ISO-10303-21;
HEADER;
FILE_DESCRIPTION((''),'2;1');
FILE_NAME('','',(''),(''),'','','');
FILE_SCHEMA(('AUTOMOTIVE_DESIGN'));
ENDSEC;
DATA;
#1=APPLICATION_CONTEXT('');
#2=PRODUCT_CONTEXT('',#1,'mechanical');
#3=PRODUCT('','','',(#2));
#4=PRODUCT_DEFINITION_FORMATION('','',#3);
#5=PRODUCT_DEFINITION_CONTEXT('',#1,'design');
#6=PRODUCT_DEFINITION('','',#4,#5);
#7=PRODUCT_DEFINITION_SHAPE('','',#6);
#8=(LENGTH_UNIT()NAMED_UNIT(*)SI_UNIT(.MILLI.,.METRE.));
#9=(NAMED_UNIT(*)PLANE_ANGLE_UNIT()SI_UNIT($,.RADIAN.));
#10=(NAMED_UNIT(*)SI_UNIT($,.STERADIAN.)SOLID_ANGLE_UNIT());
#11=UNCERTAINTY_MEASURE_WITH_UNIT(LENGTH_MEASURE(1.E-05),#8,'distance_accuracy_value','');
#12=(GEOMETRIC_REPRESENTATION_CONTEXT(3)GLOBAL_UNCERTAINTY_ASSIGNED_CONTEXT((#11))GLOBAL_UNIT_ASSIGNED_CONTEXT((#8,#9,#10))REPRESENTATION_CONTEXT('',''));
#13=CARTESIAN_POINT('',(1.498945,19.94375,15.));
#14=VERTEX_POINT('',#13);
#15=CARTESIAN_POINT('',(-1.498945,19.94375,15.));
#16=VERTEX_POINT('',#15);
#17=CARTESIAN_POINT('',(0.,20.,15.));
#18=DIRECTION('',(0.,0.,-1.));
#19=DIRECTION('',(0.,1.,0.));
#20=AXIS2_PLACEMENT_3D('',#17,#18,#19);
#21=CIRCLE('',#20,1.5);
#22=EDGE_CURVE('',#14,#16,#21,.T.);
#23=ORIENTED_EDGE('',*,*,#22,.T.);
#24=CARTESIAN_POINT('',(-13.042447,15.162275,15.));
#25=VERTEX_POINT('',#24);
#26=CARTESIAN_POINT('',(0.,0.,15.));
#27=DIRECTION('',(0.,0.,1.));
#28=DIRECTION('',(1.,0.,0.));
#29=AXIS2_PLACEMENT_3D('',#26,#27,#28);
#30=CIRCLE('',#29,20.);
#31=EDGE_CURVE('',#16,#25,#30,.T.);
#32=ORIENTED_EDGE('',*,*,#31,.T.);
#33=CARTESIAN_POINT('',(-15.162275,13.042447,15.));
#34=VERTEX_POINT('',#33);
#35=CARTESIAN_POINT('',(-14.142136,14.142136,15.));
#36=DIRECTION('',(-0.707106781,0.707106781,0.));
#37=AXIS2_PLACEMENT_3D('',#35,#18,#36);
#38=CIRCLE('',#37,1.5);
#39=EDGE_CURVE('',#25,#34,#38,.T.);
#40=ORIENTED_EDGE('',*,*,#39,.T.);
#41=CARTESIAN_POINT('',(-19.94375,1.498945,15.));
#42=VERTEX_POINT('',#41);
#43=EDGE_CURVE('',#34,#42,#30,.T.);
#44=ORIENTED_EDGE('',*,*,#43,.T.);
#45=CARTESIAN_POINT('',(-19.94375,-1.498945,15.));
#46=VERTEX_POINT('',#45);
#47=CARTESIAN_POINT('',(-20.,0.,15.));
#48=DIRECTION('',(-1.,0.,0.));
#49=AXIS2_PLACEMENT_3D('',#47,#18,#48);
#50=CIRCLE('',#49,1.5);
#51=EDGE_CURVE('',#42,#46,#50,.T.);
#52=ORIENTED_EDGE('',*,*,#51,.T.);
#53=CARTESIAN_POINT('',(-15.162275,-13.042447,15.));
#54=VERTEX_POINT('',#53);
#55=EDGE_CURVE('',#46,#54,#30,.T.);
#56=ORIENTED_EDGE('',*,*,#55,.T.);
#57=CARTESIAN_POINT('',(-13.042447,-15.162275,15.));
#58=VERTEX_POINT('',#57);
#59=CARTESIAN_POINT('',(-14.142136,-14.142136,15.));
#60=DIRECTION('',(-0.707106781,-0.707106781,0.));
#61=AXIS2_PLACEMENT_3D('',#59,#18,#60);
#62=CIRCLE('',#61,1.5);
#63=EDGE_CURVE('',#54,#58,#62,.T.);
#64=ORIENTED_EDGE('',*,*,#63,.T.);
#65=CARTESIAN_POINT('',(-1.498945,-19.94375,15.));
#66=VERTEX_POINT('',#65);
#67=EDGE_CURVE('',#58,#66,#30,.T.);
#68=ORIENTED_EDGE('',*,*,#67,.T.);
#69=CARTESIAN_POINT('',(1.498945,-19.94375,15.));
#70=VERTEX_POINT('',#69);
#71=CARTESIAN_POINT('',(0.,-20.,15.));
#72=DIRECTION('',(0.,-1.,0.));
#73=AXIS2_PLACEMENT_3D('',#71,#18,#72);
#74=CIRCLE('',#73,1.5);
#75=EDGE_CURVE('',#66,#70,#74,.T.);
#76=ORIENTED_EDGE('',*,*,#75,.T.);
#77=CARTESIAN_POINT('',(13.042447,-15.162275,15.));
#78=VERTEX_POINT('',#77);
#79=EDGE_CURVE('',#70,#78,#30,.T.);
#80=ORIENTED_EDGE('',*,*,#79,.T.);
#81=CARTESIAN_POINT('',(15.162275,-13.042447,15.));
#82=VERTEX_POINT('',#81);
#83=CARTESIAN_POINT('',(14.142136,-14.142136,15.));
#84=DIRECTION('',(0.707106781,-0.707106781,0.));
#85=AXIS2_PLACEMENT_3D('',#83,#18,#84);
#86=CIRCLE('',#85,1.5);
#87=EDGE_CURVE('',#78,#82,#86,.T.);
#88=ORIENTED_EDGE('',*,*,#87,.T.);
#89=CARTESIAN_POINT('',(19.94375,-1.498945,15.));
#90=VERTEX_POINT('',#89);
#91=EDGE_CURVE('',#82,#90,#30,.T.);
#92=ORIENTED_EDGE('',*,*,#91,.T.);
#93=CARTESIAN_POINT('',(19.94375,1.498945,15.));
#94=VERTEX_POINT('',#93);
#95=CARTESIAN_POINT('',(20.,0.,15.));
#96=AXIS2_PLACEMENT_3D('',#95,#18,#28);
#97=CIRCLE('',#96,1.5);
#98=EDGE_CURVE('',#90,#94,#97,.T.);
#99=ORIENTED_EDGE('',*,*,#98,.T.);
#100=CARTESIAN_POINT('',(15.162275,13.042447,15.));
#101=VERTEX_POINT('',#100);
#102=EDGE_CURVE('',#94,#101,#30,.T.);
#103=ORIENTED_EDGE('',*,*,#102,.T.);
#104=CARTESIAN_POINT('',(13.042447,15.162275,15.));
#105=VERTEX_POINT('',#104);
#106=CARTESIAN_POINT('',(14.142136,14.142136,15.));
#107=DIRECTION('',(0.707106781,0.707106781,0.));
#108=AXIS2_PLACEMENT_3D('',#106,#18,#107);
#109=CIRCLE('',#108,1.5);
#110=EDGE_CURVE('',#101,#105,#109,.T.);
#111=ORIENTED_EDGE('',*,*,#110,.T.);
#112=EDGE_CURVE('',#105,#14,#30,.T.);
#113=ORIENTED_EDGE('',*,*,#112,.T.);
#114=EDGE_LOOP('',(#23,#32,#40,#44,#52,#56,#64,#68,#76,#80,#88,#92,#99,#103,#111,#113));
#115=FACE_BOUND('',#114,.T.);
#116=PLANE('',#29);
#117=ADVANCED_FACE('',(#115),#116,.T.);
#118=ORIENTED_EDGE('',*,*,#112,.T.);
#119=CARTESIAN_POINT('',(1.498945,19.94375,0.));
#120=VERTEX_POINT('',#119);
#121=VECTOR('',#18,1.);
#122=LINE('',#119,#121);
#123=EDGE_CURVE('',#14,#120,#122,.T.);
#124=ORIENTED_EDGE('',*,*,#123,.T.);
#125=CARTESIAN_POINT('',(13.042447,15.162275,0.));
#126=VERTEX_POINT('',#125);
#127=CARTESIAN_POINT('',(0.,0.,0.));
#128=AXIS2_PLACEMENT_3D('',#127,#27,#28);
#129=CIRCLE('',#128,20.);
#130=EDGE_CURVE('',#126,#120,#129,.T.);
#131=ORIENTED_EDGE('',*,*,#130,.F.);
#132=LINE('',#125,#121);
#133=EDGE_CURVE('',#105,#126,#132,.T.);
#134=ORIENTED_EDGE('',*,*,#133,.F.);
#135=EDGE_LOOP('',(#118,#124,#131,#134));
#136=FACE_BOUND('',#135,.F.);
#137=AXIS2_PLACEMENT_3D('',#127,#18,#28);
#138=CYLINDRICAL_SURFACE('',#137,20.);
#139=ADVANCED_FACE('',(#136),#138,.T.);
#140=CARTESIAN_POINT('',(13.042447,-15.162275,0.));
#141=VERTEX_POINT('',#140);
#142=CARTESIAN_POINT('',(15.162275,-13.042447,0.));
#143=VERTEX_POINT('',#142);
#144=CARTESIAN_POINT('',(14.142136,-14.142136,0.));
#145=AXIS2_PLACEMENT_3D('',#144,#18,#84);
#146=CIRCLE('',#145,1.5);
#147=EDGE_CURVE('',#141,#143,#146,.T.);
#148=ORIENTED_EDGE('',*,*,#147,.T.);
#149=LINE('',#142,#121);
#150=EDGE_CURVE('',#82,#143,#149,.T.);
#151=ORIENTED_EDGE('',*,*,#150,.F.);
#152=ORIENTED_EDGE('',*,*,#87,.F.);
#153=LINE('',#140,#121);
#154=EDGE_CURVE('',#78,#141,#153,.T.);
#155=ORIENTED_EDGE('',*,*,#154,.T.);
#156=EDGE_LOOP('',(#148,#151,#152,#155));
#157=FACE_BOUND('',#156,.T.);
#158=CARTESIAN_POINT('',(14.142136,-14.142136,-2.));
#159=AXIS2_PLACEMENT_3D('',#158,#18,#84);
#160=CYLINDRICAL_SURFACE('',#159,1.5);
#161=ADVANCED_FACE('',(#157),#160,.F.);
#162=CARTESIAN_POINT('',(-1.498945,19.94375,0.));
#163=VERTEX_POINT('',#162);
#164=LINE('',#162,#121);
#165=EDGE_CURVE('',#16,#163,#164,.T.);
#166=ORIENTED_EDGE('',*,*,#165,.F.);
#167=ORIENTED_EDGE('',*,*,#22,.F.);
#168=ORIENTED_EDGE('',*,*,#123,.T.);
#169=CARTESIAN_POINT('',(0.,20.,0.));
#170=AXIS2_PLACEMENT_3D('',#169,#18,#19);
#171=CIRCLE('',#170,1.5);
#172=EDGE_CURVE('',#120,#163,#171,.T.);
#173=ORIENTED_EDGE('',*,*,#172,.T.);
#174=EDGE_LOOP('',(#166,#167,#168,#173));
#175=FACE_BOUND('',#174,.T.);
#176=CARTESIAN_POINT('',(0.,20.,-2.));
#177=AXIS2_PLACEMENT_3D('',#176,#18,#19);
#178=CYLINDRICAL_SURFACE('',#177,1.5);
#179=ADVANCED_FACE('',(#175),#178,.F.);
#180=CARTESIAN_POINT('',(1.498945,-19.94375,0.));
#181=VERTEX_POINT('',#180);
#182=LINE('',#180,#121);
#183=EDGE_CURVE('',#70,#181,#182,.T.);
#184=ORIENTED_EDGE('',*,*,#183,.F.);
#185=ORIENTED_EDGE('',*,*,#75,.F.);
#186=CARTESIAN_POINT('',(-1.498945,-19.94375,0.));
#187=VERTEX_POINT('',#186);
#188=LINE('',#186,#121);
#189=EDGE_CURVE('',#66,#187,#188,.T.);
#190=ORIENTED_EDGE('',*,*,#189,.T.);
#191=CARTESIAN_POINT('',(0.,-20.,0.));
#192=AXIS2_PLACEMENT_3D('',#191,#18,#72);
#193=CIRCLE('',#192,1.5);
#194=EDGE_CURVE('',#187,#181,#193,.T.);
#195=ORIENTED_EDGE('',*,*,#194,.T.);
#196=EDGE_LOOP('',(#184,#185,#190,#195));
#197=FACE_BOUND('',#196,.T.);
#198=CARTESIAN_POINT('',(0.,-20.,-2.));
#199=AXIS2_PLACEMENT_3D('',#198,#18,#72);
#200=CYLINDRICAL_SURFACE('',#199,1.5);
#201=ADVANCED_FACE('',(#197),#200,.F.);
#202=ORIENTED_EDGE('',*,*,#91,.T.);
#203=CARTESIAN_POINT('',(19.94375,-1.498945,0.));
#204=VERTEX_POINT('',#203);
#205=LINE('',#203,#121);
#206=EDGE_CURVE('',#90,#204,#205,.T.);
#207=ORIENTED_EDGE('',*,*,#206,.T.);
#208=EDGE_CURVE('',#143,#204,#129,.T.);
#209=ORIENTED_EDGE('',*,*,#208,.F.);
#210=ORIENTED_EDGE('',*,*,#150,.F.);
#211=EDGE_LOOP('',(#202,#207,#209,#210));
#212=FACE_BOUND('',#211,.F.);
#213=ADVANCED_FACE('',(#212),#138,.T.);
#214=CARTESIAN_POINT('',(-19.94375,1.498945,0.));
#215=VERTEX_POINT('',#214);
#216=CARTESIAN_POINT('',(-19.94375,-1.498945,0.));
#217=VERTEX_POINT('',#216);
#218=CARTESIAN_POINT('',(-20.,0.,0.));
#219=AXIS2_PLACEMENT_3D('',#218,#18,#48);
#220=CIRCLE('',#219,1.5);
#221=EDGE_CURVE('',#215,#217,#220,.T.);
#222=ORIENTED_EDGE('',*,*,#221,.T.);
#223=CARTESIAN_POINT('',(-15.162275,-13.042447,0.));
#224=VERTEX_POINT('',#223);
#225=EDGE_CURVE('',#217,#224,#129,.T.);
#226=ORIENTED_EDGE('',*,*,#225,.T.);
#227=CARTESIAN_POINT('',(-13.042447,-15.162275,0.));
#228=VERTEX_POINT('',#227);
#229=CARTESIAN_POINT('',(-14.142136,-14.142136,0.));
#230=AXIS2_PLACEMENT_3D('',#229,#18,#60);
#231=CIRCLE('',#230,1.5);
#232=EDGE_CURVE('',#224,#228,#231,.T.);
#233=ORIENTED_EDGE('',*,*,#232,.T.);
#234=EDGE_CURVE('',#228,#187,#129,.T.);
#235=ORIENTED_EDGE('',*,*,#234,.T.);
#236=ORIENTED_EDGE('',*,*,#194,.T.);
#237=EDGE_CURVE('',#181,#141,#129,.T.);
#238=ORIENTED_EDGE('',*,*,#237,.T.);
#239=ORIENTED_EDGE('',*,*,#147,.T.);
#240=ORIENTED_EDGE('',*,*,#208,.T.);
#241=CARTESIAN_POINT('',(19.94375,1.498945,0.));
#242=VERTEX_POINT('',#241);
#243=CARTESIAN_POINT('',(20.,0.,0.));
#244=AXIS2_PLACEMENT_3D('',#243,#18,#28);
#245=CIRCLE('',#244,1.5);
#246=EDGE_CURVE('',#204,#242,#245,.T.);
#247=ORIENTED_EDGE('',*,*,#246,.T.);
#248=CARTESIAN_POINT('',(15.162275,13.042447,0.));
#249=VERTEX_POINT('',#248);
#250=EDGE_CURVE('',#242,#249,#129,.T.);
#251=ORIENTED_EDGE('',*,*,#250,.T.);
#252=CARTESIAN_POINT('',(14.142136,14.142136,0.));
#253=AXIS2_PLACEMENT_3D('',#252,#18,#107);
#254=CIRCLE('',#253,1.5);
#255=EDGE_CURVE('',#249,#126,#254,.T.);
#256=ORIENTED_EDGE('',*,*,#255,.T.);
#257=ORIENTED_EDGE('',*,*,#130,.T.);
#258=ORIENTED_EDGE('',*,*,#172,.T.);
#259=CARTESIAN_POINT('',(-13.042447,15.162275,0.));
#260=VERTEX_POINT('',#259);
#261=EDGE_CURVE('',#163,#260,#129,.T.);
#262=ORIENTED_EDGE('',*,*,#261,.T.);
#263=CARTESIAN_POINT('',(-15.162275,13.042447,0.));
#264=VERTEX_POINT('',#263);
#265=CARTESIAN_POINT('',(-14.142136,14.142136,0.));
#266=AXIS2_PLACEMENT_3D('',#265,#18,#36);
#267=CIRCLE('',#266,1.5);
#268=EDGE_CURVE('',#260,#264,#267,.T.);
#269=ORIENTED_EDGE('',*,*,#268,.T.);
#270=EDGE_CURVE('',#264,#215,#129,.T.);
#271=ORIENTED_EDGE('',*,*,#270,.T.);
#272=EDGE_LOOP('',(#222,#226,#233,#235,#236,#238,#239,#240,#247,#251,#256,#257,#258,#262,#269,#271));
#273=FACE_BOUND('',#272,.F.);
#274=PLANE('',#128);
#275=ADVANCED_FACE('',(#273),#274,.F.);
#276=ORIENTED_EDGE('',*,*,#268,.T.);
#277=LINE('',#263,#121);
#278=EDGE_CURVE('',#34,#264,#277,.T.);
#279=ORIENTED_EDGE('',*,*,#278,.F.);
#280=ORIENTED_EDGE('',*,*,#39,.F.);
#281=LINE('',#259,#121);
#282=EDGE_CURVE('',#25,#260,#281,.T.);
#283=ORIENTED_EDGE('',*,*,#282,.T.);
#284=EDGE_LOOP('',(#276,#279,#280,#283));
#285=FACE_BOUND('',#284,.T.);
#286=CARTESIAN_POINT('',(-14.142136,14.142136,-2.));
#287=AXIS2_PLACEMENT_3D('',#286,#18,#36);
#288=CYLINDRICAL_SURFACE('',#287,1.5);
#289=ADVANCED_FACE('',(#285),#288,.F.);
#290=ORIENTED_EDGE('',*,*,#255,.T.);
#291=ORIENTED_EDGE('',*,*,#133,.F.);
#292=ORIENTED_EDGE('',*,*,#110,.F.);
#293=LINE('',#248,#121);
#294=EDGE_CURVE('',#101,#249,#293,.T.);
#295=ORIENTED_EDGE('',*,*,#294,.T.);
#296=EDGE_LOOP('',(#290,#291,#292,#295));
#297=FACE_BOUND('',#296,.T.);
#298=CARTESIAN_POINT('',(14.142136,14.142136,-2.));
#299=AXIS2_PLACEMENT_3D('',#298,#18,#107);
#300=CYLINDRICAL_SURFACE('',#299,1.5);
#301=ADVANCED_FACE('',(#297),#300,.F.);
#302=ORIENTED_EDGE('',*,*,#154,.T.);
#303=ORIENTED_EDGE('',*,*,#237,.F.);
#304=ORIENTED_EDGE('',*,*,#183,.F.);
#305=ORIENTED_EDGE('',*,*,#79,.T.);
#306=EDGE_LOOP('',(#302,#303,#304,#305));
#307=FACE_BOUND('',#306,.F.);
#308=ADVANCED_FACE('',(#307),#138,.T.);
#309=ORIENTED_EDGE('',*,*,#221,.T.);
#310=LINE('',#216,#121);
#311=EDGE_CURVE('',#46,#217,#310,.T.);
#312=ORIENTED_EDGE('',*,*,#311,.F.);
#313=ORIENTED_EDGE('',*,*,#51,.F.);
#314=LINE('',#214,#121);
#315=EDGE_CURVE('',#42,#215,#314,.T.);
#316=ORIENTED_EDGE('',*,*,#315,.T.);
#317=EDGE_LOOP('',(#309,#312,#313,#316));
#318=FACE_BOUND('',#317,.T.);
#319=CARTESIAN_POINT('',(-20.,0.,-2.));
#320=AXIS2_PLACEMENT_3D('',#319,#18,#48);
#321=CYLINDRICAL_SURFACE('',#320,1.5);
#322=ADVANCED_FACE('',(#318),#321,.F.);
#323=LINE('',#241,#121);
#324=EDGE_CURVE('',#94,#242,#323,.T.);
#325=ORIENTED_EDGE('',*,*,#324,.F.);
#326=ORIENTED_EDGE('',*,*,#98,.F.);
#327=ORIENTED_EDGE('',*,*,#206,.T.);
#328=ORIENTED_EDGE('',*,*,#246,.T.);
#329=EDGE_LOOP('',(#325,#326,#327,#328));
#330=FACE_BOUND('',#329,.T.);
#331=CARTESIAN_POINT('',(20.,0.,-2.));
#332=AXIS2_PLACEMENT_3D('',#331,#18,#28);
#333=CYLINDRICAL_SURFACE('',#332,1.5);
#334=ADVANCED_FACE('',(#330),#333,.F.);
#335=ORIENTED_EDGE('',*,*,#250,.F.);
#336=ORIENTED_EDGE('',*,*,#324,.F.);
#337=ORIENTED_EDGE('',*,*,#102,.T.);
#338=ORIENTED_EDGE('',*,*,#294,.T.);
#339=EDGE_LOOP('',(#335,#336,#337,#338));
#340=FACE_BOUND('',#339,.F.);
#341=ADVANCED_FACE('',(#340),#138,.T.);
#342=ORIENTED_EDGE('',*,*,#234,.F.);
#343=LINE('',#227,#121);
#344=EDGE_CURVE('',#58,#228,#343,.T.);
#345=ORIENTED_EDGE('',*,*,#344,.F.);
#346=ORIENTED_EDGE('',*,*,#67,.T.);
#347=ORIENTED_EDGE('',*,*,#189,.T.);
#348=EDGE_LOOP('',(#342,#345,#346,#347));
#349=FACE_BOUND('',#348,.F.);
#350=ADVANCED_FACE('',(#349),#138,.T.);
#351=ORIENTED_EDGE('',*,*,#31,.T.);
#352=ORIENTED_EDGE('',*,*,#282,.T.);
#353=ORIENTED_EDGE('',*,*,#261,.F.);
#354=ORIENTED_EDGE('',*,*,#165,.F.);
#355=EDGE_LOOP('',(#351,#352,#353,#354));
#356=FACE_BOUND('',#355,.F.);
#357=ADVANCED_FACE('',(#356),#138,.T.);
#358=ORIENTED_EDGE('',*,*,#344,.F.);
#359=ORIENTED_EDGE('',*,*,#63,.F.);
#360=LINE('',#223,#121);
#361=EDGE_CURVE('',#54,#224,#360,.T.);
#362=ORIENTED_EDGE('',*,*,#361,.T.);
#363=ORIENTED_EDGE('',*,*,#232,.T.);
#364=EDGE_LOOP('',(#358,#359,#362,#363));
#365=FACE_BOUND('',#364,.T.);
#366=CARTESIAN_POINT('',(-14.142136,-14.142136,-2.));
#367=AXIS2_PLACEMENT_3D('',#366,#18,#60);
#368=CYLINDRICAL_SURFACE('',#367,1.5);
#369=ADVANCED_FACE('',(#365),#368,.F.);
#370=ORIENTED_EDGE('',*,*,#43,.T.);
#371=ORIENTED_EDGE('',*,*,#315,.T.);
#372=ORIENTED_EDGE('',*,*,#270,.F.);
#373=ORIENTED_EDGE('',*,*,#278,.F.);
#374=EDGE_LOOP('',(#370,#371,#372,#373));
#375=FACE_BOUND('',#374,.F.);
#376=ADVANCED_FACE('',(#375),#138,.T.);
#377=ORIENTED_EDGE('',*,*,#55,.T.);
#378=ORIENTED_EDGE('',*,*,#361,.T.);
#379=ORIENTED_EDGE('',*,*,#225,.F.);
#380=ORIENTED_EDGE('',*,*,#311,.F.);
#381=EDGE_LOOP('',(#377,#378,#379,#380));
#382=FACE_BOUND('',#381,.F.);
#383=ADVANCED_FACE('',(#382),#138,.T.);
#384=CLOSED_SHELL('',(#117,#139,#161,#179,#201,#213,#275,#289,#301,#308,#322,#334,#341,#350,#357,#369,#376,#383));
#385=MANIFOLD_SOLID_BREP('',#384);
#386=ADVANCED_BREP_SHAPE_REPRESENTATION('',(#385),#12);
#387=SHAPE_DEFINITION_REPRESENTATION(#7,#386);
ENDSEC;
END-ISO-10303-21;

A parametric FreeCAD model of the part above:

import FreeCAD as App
import Part
import Sketcher

doc = App.newDocument("Part")
params = doc.addObject("Spreadsheet::Sheet", "Params")
for row, (alias, value) in enumerate([
    ("sketch1_diameter", "3 mm"),
    ("pad1_length", "20 mm"),
    ("sketch2_diameter", "40 mm"),
    ("pad2_length", "15 mm"),
], start=1):
    params.set(f"A{row}", alias)
    params.set(f"B{row}", "=" + value)
    params.setAlias(f"B{row}", alias)

body = doc.addObject("PartDesign::Body", "Body")

sketch1 = body.newObject("Sketcher::SketchObject", "Sketch")
sketch1.AttachmentSupport = (doc.getObject("XY_Plane"), [""])
sketch1.MapMode = "FlatFace"
sketch1.AttachmentOffset = App.Placement(App.Vector(0, 0, -2), App.Rotation())
sketch1.addGeometry(Part.Circle(App.Vector(20, 0, 0), App.Vector(0, 0, 1), 1.5), False)
sketch1.addConstraint([
    Sketcher.Constraint("PointOnObject", 0, 3, -1),
    Sketcher.Constraint("Diameter", 0, 3.0),
    Sketcher.Constraint("DistanceX", -1, 1, 0, 3, 20.0),
])
sketch1.setExpression("Constraints[1]", "Params.sketch1_diameter")
pad1 = body.newObject("PartDesign::Pad", "Pad")
pad1.Profile = sketch1
pad1.setExpression("Length", "Params.pad1_length")
body2 = doc.addObject("PartDesign::Body", "Body001")
body2.AllowCompound = True
doc.recompute()

body2.BaseFeature = body
doc.recompute()

body3 = doc.addObject("PartDesign::Body", "Body002")
body3.BaseFeature = body
body3.Placement = App.Placement(App.Vector(0, 0, 0), App.Rotation(App.Vector(0, 0, 1), 45))
boolean = body2.newObject("PartDesign::Boolean", "Boolean")
boolean.Type = "Fuse"
boolean.addObjects([body3])
doc.recompute()

body4 = doc.addObject("PartDesign::Body", "Body003")
body4.BaseFeature = body
body4.Placement = App.Placement(App.Vector(0, 0, 0), App.Rotation(App.Vector(0, 0, 1), 90))
boolean2 = body2.newObject("PartDesign::Boolean", "Boolean001")
boolean2.Type = "Fuse"
boolean2.addObjects([body4])
doc.recompute()

body5 = doc.addObject("PartDesign::Body", "Body004")
body5.BaseFeature = body
body5.Placement = App.Placement(App.Vector(0, 0, 0), App.Rotation(App.Vector(0, 0, 1), 135))
boolean3 = body2.newObject("PartDesign::Boolean", "Boolean002")
boolean3.Type = "Fuse"
boolean3.addObjects([body5])
doc.recompute()

body6 = doc.addObject("PartDesign::Body", "Body005")
body6.BaseFeature = body
body6.Placement = App.Placement(App.Vector(0, 0, 0), App.Rotation(App.Vector(0, 0, 1), 180))
boolean4 = body2.newObject("PartDesign::Boolean", "Boolean003")
boolean4.Type = "Fuse"
boolean4.addObjects([body6])
doc.recompute()

body7 = doc.addObject("PartDesign::Body", "Body006")
body7.BaseFeature = body
body7.Placement = App.Placement(App.Vector(0, 0, 0), App.Rotation(App.Vector(0, 0, 1), 225))
boolean5 = body2.newObject("PartDesign::Boolean", "Boolean004")
boolean5.Type = "Fuse"
boolean5.addObjects([body7])
doc.recompute()

body8 = doc.addObject("PartDesign::Body", "Body007")
body8.BaseFeature = body
body8.Placement = App.Placement(App.Vector(0, 0, 0), App.Rotation(App.Vector(0, 0, 1), 270))
boolean6 = body2.newObject("PartDesign::Boolean", "Boolean005")
boolean6.Type = "Fuse"
boolean6.addObjects([body8])
doc.recompute()

body.Placement = App.Placement(App.Vector(0, 0, 0), App.Rotation(App.Vector(0, 0, 1), 315))
boolean7 = body2.newObject("PartDesign::Boolean", "Boolean006")
boolean7.Type = "Fuse"
boolean7.addObjects([body])
body9 = doc.addObject("PartDesign::Body", "Body008")

sketch2 = body9.newObject("Sketcher::SketchObject", "Sketch001")
sketch2.AttachmentSupport = (doc.getObject("XY_Plane008"), [""])
sketch2.MapMode = "FlatFace"
sketch2.addGeometry(Part.Circle(App.Vector(0, 0, 0), App.Vector(0, 0, 1), 20), False)
sketch2.addConstraint([
    Sketcher.Constraint("Coincident", 0, 3, -1, 1),
    Sketcher.Constraint("Diameter", 0, 40.0),
])
sketch2.setExpression("Constraints[1]", "Params.sketch2_diameter")
pad2 = body9.newObject("PartDesign::Pad", "Pad001")
pad2.Profile = sketch2
pad2.setExpression("Length", "Params.pad2_length")
doc.recompute()

boolean8 = body9.newObject("PartDesign::Boolean", "Boolean007")
boolean8.Type = "Cut"
boolean8.addObjects([body2])

doc.recompute()
